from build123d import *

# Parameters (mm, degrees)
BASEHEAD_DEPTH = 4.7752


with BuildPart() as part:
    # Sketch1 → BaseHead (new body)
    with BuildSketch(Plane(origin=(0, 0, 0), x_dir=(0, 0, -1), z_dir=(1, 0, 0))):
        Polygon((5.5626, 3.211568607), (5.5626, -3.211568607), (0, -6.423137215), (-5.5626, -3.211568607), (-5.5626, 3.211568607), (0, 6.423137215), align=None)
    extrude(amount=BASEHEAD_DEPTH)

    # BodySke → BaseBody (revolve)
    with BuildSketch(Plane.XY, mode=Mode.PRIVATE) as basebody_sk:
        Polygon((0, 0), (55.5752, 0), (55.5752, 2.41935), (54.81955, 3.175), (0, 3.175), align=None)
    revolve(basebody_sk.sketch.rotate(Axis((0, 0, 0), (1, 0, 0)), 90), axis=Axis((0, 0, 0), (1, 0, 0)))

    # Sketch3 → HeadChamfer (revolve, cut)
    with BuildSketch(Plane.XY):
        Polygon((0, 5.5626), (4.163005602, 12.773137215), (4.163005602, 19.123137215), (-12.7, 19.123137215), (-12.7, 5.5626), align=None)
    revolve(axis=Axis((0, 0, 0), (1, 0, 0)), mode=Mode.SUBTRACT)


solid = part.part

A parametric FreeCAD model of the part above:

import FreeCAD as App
import Part
import Sketcher
Q = App.Units.Quantity

doc = App.newDocument("Part")
body = doc.addObject("PartDesign::Body", "Body")

# Sketch on YZ plane
sketch1 = doc.addObject("Sketcher::SketchObject", "Sketch")
body.addObject(sketch1)
sketch1.AttachmentSupport = (doc.YZ_Plane, [""])
sketch1.MapMode = "FlatFace"
sketch1.addGeometry(Part.LineSegment(App.Vector(-3.211569, -5.5626, 0), App.Vector(3.211569, -5.5626, 0)), False)
sketch1.addGeometry(Part.LineSegment(App.Vector(3.211569, -5.5626, 0), App.Vector(6.423137, 0, 0)), False)
sketch1.addGeometry(Part.LineSegment(App.Vector(6.423137, 0, 0), App.Vector(3.211569, 5.5626, 0)), False)
sketch1.addGeometry(Part.LineSegment(App.Vector(3.211569, 5.5626, 0), App.Vector(-3.211569, 5.5626, 0)), False)
sketch1.addGeometry(Part.LineSegment(App.Vector(-3.211569, 5.5626, 0), App.Vector(-6.423137, 0, 0)), False)
sketch1.addGeometry(Part.LineSegment(App.Vector(-6.423137, 0, 0), App.Vector(-3.211569, -5.5626, 0)), False)
sketch1.addConstraint(Sketcher.Constraint("Coincident", 0, 2, 1, 1))
sketch1.addConstraint(Sketcher.Constraint("Coincident", 1, 2, 2, 1))
sketch1.addConstraint(Sketcher.Constraint("Coincident", 2, 2, 3, 1))
sketch1.addConstraint(Sketcher.Constraint("Coincident", 3, 2, 4, 1))
sketch1.addConstraint(Sketcher.Constraint("Coincident", 4, 2, 5, 1))
sketch1.addConstraint(Sketcher.Constraint("Coincident", 5, 2, 0, 1))
sketch1.addConstraint(Sketcher.Constraint("Horizontal", 0))
sketch1.addConstraint(Sketcher.Constraint("Horizontal", 3))
sketch1.addConstraint(Sketcher.Constraint("Symmetric", 0, 2, 3, 2, -1, 1))
sketch1.addConstraint(Sketcher.Constraint("Symmetric", 1, 2, 4, 2, -1, 1))
sketch1.addConstraint(Sketcher.Constraint("PointOnObject", 1, 2, -1))
sketch1.addConstraint(Sketcher.Constraint("Parallel", 2, 5))
sketch1.addConstraint(Sketcher.Constraint("Vertical", 0, 2, 2, 2))
sketch1.addConstraint(Sketcher.Constraint("Angle", 1, Q("60 deg")))
sketch1.addConstraint(Sketcher.Constraint("DistanceY", 0, 2, -1, 1, Q("0.219 in")))
sketch1.addConstraint(Sketcher.Constraint("DistanceX", 0, 1, 0, 2, 6.423137))
pad1 = doc.addObject("PartDesign::Pad", "Pad")
body.addObject(pad1)
pad1.Profile = sketch1
pad1.Length = Q("0.188 in")

# Sketch on XY plane
sketch2 = doc.addObject("Sketcher::SketchObject", "Sketch001")
body.addObject(sketch2)
sketch2.AttachmentSupport = (doc.XY_Plane, [""])
sketch2.MapMode = "FlatFace"
sketch2.addGeometry(Part.LineSegment(App.Vector(0, 0, 0), App.Vector(55.5752, 0, 0)), False)
sketch2.addGeometry(Part.LineSegment(App.Vector(55.5752, 0, 0), App.Vector(55.5752, 2.41935, 0)), False)
sketch2.addGeometry(Part.LineSegment(App.Vector(55.5752, 2.41935, 0), App.Vector(54.81955, 3.175, 0)), False)
sketch2.addGeometry(Part.LineSegment(App.Vector(54.81955, 3.175, 0), App.Vector(0, 3.175, 0)), False)
sketch2.addGeometry(Part.LineSegment(App.Vector(0, 3.175, 0), App.Vector(0, 0, 0)), False)
sketch2.addConstraint(Sketcher.Constraint("Coincident", 0, 2, 1, 1))
sketch2.addConstraint(Sketcher.Constraint("Coincident", 1, 2, 2, 1))
sketch2.addConstraint(Sketcher.Constraint("Coincident", 2, 2, 3, 1))
sketch2.addConstraint(Sketcher.Constraint("Coincident", 3, 2, 4, 1))
sketch2.addConstraint(Sketcher.Constraint("Coincident", 4, 2, 0, 1))
sketch2.addConstraint(Sketcher.Constraint("Horizontal", 0))
sketch2.addConstraint(Sketcher.Constraint("Vertical", 1))
sketch2.addConstraint(Sketcher.Constraint("Horizontal", 3))
sketch2.addConstraint(Sketcher.Constraint("Vertical", 4))
sketch2.addConstraint(Sketcher.Constraint("Coincident", 4, 2, -1, 1))
sketch2.addConstraint(Sketcher.Constraint("Angle", 2, Q("135 deg")))
sketch2.addConstraint(Sketcher.Constraint("DistanceX", 0, 1, 0, 2, Q("2.188 in")))
sketch2.addConstraint(Sketcher.Constraint("DistanceY", 4, 2, 4, 1, Q("0.125 in")))
sketch2.addConstraint(Sketcher.Constraint("DistanceX", 3, 2, 3, 1, 54.81955))
revolution = doc.addObject("PartDesign::Revolution", "Revolution")
body.addObject(revolution)
revolution.Profile = sketch2
revolution.ReferenceAxis = (sketch2, ["H_Axis"])
revolution.Angle = 360

# Sketch on XY plane
sketch3 = doc.addObject("Sketcher::SketchObject", "Sketch002")
body.addObject(sketch3)
sketch3.AttachmentSupport = (doc.XY_Plane, [""])
sketch3.MapMode = "FlatFace"
sketch3.addGeometry(Part.LineSegment(App.Vector(0, 5.5626, 0), App.Vector(4.163006, 12.773137, 0)), False)
sketch3.addGeometry(Part.LineSegment(App.Vector(4.163006, 12.773137, 0), App.Vector(4.163006, 19.123137, 0)), False)
sketch3.addGeometry(Part.LineSegment(App.Vector(4.163006, 19.123137, 0), App.Vector(-12.7, 19.123137, 0)), False)
sketch3.addGeometry(Part.LineSegment(App.Vector(-12.7, 19.123137, 0), App.Vector(-12.7, 5.5626, 0)), False)
sketch3.addGeometry(Part.LineSegment(App.Vector(-12.7, 5.5626, 0), App.Vector(0, 5.5626, 0)), False)
sketch3.addConstraint(Sketcher.Constraint("Coincident", 0, 2, 1, 1))
sketch3.addConstraint(Sketcher.Constraint("Coincident", 1, 2, 2, 1))
sketch3.addConstraint(Sketcher.Constraint("Coincident", 2, 2, 3, 1))
sketch3.addConstraint(Sketcher.Constraint("Coincident", 3, 2, 4, 1))
sketch3.addConstraint(Sketcher.Constraint("Coincident", 4, 2, 0, 1))
sketch3.addConstraint(Sketcher.Constraint("Vertical", 1))
sketch3.addConstraint(Sketcher.Constraint("Horizontal", 2))
sketch3.addConstraint(Sketcher.Constraint("Vertical", 3))
sketch3.addConstraint(Sketcher.Constraint("Horizontal", 4))
sketch3.addConstraint(Sketcher.Constraint("PointOnObject", 4, 2, -2))
sketch3.addConstraint(Sketcher.Constraint("DistanceX", 4, 1, 4, 2, Q("0.5 in")))
sketch3.addConstraint(Sketcher.Constraint("Angle", 0, Q("60 deg")))
sketch3.addConstraint(Sketcher.Constraint("DistanceY", 1, 1, 1, 2, Q("0.25 in")))
sketch3.addConstraint(Sketcher.Constraint("DistanceY", -1, 1, 3, 2, Q("0.219 in")))
sketch3.addConstraint(Sketcher.Constraint("Distance", 0, 8.326011))
groove = doc.addObject("PartDesign::Groove", "Groove")
body.addObject(groove)
groove.Profile = sketch3
groove.ReferenceAxis = (sketch3, ["H_Axis"])
groove.Angle = 360

doc.recompute()
